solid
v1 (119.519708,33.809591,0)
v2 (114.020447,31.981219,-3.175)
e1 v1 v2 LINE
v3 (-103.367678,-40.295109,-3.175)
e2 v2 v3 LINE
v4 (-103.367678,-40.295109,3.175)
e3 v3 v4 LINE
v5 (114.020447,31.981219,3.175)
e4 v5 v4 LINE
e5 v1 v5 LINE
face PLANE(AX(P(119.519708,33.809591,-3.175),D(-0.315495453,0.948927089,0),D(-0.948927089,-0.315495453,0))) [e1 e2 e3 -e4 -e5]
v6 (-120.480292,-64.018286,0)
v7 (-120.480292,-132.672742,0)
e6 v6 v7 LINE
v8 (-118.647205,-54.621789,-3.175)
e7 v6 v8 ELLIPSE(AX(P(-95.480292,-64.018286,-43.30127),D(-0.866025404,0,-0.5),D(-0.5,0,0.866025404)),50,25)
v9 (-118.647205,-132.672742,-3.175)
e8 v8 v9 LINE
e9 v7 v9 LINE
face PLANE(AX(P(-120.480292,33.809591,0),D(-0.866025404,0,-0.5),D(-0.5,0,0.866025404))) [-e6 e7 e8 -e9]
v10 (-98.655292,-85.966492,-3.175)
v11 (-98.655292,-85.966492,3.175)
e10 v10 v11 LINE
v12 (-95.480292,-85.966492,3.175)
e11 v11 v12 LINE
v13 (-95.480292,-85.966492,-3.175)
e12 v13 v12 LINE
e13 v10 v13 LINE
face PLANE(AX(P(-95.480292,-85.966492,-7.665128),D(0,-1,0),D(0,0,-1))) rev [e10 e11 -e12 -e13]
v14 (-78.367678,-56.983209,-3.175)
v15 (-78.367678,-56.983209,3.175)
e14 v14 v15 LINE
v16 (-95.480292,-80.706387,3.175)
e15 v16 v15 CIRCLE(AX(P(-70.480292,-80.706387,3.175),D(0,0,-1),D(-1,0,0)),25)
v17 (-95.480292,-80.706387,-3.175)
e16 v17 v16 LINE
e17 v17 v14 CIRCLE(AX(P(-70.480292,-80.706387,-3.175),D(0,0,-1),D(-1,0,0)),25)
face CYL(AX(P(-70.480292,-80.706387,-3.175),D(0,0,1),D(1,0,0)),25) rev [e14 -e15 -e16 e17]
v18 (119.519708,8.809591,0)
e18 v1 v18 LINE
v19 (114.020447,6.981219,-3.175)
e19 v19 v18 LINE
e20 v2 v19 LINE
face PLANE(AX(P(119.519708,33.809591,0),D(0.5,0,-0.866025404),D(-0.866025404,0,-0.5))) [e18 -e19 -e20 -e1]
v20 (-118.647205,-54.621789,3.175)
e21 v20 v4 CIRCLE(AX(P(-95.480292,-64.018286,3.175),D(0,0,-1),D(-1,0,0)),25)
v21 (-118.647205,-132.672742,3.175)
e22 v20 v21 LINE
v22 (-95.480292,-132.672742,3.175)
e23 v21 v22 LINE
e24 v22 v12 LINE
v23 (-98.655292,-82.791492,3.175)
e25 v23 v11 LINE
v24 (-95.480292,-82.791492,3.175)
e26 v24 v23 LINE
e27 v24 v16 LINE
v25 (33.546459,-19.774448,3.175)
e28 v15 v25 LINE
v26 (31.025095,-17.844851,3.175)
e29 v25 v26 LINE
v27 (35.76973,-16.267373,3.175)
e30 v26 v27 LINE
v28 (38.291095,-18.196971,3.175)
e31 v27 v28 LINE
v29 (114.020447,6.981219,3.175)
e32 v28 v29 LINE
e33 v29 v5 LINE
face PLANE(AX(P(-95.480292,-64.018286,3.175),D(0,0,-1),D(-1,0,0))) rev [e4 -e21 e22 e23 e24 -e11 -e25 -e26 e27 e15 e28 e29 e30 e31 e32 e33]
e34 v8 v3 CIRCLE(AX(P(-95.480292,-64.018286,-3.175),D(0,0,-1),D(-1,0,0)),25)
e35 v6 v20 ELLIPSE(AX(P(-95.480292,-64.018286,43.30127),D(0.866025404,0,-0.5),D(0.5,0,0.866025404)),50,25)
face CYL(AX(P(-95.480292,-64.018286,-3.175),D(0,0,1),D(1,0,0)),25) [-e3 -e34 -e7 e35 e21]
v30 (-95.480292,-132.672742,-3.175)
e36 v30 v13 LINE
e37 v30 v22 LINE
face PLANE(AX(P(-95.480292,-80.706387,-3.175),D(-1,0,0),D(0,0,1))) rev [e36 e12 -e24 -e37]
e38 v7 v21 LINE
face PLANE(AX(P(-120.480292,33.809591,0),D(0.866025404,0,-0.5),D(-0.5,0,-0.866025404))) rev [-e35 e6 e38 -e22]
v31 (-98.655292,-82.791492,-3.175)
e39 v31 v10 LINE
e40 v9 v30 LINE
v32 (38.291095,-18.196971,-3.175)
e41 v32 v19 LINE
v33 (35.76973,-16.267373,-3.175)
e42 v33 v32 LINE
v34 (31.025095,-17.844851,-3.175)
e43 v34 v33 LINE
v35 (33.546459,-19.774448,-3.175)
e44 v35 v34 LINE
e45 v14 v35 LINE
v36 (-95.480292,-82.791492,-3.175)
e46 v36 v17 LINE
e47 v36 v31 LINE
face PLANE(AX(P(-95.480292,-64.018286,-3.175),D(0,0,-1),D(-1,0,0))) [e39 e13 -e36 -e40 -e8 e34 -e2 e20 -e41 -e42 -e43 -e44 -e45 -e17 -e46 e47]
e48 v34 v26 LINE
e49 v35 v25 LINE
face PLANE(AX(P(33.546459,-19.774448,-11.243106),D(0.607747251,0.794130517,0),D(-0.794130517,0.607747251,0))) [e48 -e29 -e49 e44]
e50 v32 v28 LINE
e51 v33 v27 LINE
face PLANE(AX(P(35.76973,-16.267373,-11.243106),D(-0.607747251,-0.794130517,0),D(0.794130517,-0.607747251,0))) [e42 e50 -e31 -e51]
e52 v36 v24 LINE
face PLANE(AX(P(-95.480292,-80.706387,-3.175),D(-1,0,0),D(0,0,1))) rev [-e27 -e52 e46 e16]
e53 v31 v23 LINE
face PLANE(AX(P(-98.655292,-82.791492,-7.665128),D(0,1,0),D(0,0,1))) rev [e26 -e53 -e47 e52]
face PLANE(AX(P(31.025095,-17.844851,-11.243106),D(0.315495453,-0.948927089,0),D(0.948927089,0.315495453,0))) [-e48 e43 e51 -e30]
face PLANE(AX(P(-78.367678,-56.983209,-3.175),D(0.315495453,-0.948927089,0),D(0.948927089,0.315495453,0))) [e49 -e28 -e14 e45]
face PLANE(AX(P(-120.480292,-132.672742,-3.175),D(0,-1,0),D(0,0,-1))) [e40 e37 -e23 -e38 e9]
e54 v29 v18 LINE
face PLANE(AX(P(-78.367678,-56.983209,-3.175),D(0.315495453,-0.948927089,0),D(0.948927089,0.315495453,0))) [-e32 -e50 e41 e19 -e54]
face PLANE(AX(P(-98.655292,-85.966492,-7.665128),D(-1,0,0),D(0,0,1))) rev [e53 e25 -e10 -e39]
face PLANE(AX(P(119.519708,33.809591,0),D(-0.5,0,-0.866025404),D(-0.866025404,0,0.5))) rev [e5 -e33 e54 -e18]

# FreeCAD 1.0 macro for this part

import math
import FreeCAD as App
import Part
import Sketcher

V = App.Vector
Q = App.Units.Quantity


def add_polygon(sketch, points):
    """Adds a closed chain of lines whose ends are joined by coincident constraints."""
    first, n = sketch.GeometryCount, len(points)
    for a, b in zip(points, points[1:] + points[:1]):
        sketch.addGeometry(Part.LineSegment(App.Vector(*a, 0), App.Vector(*b, 0)), False)
    for i in range(n):
        sketch.addConstraint(Sketcher.Constraint("Coincident", first + i, 2, first + (i + 1) % n, 1))

doc = App.newDocument("Part")
body = doc.addObject("PartDesign::Body", "Body")

sketch1 = body.newObject("Sketcher::SketchObject", "Sketch")
sketch1.AttachmentSupport = (doc.getObject("XY_Plane"), [""])
sketch1.MapMode = "FlatFace"
sketch1.addGeometry(Part.LineSegment(V(-95, -133, 0), V(-95, -81, 0)), False)
sketch1.addGeometry(Part.ArcOfCircle(Part.Circle(V(-70, -81, 0), V(0, 0, 1), 25), math.radians(108), math.radians(180)), False)
sketch1.addGeometry(Part.LineSegment(V(-78, -57, 0), V(120, 9, 0)), False)
sketch1.addGeometry(Part.LineSegment(V(120, 9, 0), V(120, 34, 0)), False)
sketch1.addGeometry(Part.LineSegment(V(120, 34, 0), V(-103, -40, 0)), False)
sketch1.addGeometry(Part.ArcOfCircle(Part.Circle(V(-95, -64, 0), V(0, 0, 1), 25), math.radians(108), math.radians(180)), False)
sketch1.addGeometry(Part.LineSegment(V(-120, -64, 0), V(-120, -133, 0)), False)
sketch1.addGeometry(Part.LineSegment(V(-120, -133, 0), V(-95, -133, 0)), False)
sketch1.addConstraint(Sketcher.Constraint("Tangent", 0, 2, 1, 2))
sketch1.addConstraint(Sketcher.Constraint("Tangent", 1, 1, 2, 1))
sketch1.addConstraint(Sketcher.Constraint("Coincident", 2, 2, 3, 1))
sketch1.addConstraint(Sketcher.Constraint("Coincident", 3, 2, 4, 1))
sketch1.addConstraint(Sketcher.Constraint("Tangent", 4, 2, 5, 1))
sketch1.addConstraint(Sketcher.Constraint("Tangent", 5, 2, 6, 1))
sketch1.addConstraint(Sketcher.Constraint("Coincident", 6, 2, 7, 1))
sketch1.addConstraint(Sketcher.Constraint("Coincident", 7, 2, 0, 1))
sketch1.addConstraint(Sketcher.Constraint("Vertical", 0))
sketch1.addConstraint(Sketcher.Constraint("Vertical", 3))
sketch1.addConstraint(Sketcher.Constraint("Vertical", 6))
sketch1.addConstraint(Sketcher.Constraint("Horizontal", 7))
sketch1.addConstraint(Sketcher.Constraint("Equal", 1, 5))
sketch1.addConstraint(Sketcher.Constraint("Parallel", 2, 4))
sketch1.addConstraint(Sketcher.Constraint("Vertical", 5, 3, 0, 2))
sketch1.addConstraint(Sketcher.Constraint("Equal", 7, 3))
sketch1.addConstraint(Sketcher.Constraint("Radius", 1, 25.0))
sketch1.addConstraint(Sketcher.Constraint("DistanceX", 1, 3, 2, 2, 190.0))
sketch1.addConstraint(Sketcher.Constraint("DistanceY", 1, 3, 5, 3, 16.688101))
sketch1.addConstraint(Sketcher.Constraint("DistanceY", 0, 1, 0, 2, 51.966356))
sketch1.addConstraint(Sketcher.Constraint("DistanceX", 1, 3, -1, 1, 70.480292))
sketch1.addConstraint(Sketcher.Constraint("DistanceY", 1, 1, -1, 1, 56.983209))
pad1 = body.newObject("PartDesign::Pad", "Pad")
pad1.Profile = sketch1
pad1.Type = "TwoLengths"
pad1.Length = 3.175
pad1.Length2 = 3.175

sketch2 = body.newObject("Sketcher::SketchObject", "Sketch001")
sketch2.AttachmentSupport = (doc.getObject("XZ_Plane"), [""])
sketch2.MapMode = "FlatFace"
sketch2.AttachmentOffset = App.Placement(V(0, 0, 132.672742), App.Rotation())
add_polygon(sketch2, [(-120.5, 3.2), (-120.5, 0), (-118.6, 3.2)])
sketch2.addConstraint(Sketcher.Constraint("Vertical", 0))
sketch2.addConstraint(Sketcher.Constraint("Horizontal", 2))
sketch2.addConstraint(Sketcher.Constraint("PointOnObject", 0, 2, -1))
sketch2.addConstraint(Sketcher.Constraint("Angle", 1, Q("60 deg")))
sketch2.addConstraint(Sketcher.Constraint("DistanceY", 0, 2, 0, 1, 3.175))
sketch2.addConstraint(Sketcher.Constraint("DistanceX", 0, 2, -1, 1, 120.480292))
pocket1 = body.newObject("PartDesign::Pocket", "Pocket")
pocket1.Profile = sketch2
pocket1.Type = "ThroughAll"
doc.recompute()

mirrored = body.newObject("PartDesign::Mirrored", "Mirrored")
mirrored.Originals = [pocket1]
mirrored.MirrorPlane = (doc.getObject("XY_Plane"), [""])
body.Tip = mirrored

sketch3 = body.newObject("Sketcher::SketchObject", "Sketch002")
sketch3.AttachmentSupport = (doc.getObject("XZ_Plane"), [""])
sketch3.MapMode = "FlatFace"
sketch3.AttachmentOffset = App.Placement(V(0, 0, 132.672742), App.Rotation())
add_polygon(sketch3, [(119.5, 3.2), (114, 3.2), (119.5, 0)])
sketch3.addConstraint(Sketcher.Constraint("Horizontal", 0))
sketch3.addConstraint(Sketcher.Constraint("Vertical", 2))
sketch3.addConstraint(Sketcher.Constraint("PointOnObject", 1, 2, -1))
sketch3.addConstraint(Sketcher.Constraint("Angle", 1, Q("-30 deg")))
sketch3.addConstraint(Sketcher.Constraint("Distance", 1, 6.35))
sketch3.addConstraint(Sketcher.Constraint("DistanceX", -1, 1, 1, 2, 119.519708))
pocket2 = body.newObject("PartDesign::Pocket", "Pocket001")
pocket2.Profile = sketch3
pocket2.Type = "ThroughAll"
doc.recompute()

mirrored2 = body.newObject("PartDesign::Mirrored", "Mirrored001")
mirrored2.Originals = [pocket2]
mirrored2.MirrorPlane = (doc.getObject("XY_Plane"), [""])
body.Tip = mirrored2

sketch4 = body.newObject("Sketcher::SketchObject", "Sketch003")
sketch4.AttachmentSupport = (doc.getObject("XY_Plane"), [""])
sketch4.MapMode = "FlatFace"
sketch4.AttachmentOffset = App.Placement(V(0, 0, 3.175), App.Rotation())
add_polygon(sketch4, [(33.5, -19.8), (38.3, -18.2), (35.8, -16.3), (31, -17.8)])
sketch4.addConstraint(Sketcher.Constraint("Parallel", 0, 2))
sketch4.addConstraint(Sketcher.Constraint("Parallel", 1, 3))
sketch4.addConstraint(Sketcher.Constraint("Distance", 0, 5.0))
sketch4.addConstraint(Sketcher.Constraint("Distance", 1, 3.175))
sketch4.addConstraint(Sketcher.Constraint("DistanceX", 2, 2, 0, 2, 7.266))
sketch4.addConstraint(Sketcher.Constraint("DistanceY", 0, 2, -1, 1, 18.196971))
sketch4.addConstraint(Sketcher.Constraint("DistanceX", -1, 1, 1, 2, 35.76973))
sketch4.addConstraint(Sketcher.Constraint("DistanceY", 2, 2, -1, 1, 17.844851))
pocket3 = body.newObject("PartDesign::Pocket", "Pocket002")
pocket3.Profile = sketch4
pocket3.Length = 6.35

sketch5 = body.newObject("Sketcher::SketchObject", "Sketch004")
sketch5.AttachmentSupport = (doc.getObject("XY_Plane"), [""])
sketch5.MapMode = "FlatFace"
sketch5.AttachmentOffset = App.Placement(V(0, 0, 3.175), App.Rotation())
add_polygon(sketch5, [(-98.7, -82.8), (-98.7, -86), (-95.5, -86), (-95.5, -82.8)])
sketch5.addConstraint(Sketcher.Constraint("Vertical", 0))
sketch5.addConstraint(Sketcher.Constraint("Horizontal", 1))
sketch5.addConstraint(Sketcher.Constraint("Vertical", 2))
sketch5.addConstraint(Sketcher.Constraint("Horizontal", 3))
sketch5.addConstraint(Sketcher.Constraint("Equal", 3, 0))
sketch5.addConstraint(Sketcher.Constraint("DistanceX", 1, 1, 1, 2, 3.175))
sketch5.addConstraint(Sketcher.Constraint("DistanceX", 0, 2, -1, 1, 98.655292))
sketch5.addConstraint(Sketcher.Constraint("DistanceY", 0, 2, -1, 1, 85.966492))
pocket4 = body.newObject("PartDesign::Pocket", "Pocket003")
pocket4.Profile = sketch5
pocket4.Length = 6.35

doc.recompute()
